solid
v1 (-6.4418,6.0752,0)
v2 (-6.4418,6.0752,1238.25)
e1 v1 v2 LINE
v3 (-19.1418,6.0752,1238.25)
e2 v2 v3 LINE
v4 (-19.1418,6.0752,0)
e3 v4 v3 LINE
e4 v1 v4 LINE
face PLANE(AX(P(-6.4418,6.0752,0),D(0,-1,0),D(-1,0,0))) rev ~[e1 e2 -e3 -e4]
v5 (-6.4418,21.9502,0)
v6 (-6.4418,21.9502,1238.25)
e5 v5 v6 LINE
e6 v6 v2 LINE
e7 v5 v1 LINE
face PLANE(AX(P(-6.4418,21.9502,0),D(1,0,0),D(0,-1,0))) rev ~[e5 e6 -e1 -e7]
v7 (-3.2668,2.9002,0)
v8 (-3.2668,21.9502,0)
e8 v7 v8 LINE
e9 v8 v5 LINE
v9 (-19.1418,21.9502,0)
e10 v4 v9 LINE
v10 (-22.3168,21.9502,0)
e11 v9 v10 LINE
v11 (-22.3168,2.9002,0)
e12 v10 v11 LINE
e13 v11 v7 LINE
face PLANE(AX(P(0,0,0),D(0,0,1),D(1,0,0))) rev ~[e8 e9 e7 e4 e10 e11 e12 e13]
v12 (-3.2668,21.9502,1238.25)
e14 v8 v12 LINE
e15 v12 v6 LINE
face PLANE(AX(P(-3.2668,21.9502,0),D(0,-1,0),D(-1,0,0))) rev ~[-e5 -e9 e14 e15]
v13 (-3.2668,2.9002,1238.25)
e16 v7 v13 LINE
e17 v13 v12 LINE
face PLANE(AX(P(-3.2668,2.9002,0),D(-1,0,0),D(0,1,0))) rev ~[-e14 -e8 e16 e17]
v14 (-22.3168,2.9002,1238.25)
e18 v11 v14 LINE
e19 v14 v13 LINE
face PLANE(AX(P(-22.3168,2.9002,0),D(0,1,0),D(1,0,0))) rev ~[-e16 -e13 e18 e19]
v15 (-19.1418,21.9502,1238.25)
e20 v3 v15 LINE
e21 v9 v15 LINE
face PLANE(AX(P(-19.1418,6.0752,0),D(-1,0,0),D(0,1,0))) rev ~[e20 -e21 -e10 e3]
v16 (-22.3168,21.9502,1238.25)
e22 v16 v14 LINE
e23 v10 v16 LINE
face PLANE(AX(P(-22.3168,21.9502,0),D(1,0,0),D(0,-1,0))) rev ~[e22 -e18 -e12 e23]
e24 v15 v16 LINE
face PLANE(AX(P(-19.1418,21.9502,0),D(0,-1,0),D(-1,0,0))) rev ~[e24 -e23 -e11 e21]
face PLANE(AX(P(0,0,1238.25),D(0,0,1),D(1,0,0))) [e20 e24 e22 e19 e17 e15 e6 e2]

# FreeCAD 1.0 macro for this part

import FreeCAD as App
import Part
import Sketcher

V = App.Vector
Q = App.Units.Quantity


def add_polygon(sketch, points):
    """Adds a closed chain of lines whose ends are joined by coincident constraints."""
    first, n = sketch.GeometryCount, len(points)
    for a, b in zip(points, points[1:] + points[:1]):
        sketch.addGeometry(Part.LineSegment(App.Vector(*a, 0), App.Vector(*b, 0)), False)
    for i in range(n):
        sketch.addConstraint(Sketcher.Constraint("Coincident", first + i, 2, first + (i + 1) % n, 1))

doc = App.newDocument("Part")
body = doc.addObject("PartDesign::Body", "Body")

sketch1 = body.newObject("Sketcher::SketchObject", "Sketch")
sketch1.AttachmentSupport = (doc.getObject("XY_Plane"), [""])
sketch1.MapMode = "FlatFace"
add_polygon(sketch1, [(-19.1, 6.1), (-19.1, 22), (-22.3, 22), (-22.3, 2.9), (-3.3, 2.9), (-3.3, 22), (-6.4, 22), (-6.4, 6.1)])
sketch1.addConstraint(Sketcher.Constraint("Vertical", 0))
sketch1.addConstraint(Sketcher.Constraint("Horizontal", 1))
sketch1.addConstraint(Sketcher.Constraint("Vertical", 2))
sketch1.addConstraint(Sketcher.Constraint("Horizontal", 3))
sketch1.addConstraint(Sketcher.Constraint("Vertical", 4))
sketch1.addConstraint(Sketcher.Constraint("Horizontal", 5))
sketch1.addConstraint(Sketcher.Constraint("Vertical", 6))
sketch1.addConstraint(Sketcher.Constraint("Horizontal", 7))
sketch1.addConstraint(Sketcher.Constraint("Horizontal", 1, 2, 4, 2))
sketch1.addConstraint(Sketcher.Constraint("Equal", 1, 5))
sketch1.addConstraint(Sketcher.Constraint("Equal", 3, 2))
sketch1.addConstraint(Sketcher.Constraint("DistanceX", 7, 2, 7, 1, Q("0.5 in")))
sketch1.addConstraint(Sketcher.Constraint("DistanceX", 3, 1, 3, 2, Q("0.75 in")))
sketch1.addConstraint(Sketcher.Constraint("DistanceY", 0, 1, 0, 2, Q("0.625 in")))
sketch1.addConstraint(Sketcher.Constraint("DistanceX", 0, 2, -1, 1, Q("19.1418 mm")))
sketch1.addConstraint(Sketcher.Constraint("DistanceY", -1, 1, 0, 2, Q("21.9502 mm")))
pad1 = body.newObject("PartDesign::Pad", "Pad")
pad1.Profile = sketch1
pad1.Length = Q("48.75 in")

doc.recompute()
